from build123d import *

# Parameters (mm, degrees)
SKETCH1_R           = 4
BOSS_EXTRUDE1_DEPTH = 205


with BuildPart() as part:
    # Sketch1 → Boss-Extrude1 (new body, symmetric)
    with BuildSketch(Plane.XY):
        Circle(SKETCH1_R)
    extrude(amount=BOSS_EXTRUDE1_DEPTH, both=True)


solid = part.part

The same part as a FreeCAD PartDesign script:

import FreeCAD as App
import Part
import Sketcher

V = App.Vector

doc = App.newDocument("Part")
params = doc.addObject("Spreadsheet::Sheet", "Params")
for row, (alias, value) in enumerate([
    ("sketch1_diameter", "8 mm"),
    ("pad1_length", "410 mm"),
], start=1):
    params.set(f"A{row}", alias)
    params.set(f"B{row}", "=" + value)
    params.setAlias(f"B{row}", alias)

body = doc.addObject("PartDesign::Body", "Body")

sketch1 = body.newObject("Sketcher::SketchObject", "Sketch")
sketch1.AttachmentSupport = (doc.getObject("XY_Plane"), [""])
sketch1.MapMode = "FlatFace"
sketch1.addGeometry(Part.Circle(V(0, 0, 0), V(0, 0, 1), 4), False)
sketch1.addConstraint(Sketcher.Constraint("Coincident", 0, 3, -1, 1))
sketch1.addConstraint(Sketcher.Constraint("Diameter", 0, 8.0))
sketch1.setExpression("Constraints[1]", "Params.sketch1_diameter")
pad1 = body.newObject("PartDesign::Pad", "Pad")
pad1.Profile = sketch1
pad1.setExpression("Length", "Params.pad1_length")
pad1.Midplane = True

doc.recompute()
